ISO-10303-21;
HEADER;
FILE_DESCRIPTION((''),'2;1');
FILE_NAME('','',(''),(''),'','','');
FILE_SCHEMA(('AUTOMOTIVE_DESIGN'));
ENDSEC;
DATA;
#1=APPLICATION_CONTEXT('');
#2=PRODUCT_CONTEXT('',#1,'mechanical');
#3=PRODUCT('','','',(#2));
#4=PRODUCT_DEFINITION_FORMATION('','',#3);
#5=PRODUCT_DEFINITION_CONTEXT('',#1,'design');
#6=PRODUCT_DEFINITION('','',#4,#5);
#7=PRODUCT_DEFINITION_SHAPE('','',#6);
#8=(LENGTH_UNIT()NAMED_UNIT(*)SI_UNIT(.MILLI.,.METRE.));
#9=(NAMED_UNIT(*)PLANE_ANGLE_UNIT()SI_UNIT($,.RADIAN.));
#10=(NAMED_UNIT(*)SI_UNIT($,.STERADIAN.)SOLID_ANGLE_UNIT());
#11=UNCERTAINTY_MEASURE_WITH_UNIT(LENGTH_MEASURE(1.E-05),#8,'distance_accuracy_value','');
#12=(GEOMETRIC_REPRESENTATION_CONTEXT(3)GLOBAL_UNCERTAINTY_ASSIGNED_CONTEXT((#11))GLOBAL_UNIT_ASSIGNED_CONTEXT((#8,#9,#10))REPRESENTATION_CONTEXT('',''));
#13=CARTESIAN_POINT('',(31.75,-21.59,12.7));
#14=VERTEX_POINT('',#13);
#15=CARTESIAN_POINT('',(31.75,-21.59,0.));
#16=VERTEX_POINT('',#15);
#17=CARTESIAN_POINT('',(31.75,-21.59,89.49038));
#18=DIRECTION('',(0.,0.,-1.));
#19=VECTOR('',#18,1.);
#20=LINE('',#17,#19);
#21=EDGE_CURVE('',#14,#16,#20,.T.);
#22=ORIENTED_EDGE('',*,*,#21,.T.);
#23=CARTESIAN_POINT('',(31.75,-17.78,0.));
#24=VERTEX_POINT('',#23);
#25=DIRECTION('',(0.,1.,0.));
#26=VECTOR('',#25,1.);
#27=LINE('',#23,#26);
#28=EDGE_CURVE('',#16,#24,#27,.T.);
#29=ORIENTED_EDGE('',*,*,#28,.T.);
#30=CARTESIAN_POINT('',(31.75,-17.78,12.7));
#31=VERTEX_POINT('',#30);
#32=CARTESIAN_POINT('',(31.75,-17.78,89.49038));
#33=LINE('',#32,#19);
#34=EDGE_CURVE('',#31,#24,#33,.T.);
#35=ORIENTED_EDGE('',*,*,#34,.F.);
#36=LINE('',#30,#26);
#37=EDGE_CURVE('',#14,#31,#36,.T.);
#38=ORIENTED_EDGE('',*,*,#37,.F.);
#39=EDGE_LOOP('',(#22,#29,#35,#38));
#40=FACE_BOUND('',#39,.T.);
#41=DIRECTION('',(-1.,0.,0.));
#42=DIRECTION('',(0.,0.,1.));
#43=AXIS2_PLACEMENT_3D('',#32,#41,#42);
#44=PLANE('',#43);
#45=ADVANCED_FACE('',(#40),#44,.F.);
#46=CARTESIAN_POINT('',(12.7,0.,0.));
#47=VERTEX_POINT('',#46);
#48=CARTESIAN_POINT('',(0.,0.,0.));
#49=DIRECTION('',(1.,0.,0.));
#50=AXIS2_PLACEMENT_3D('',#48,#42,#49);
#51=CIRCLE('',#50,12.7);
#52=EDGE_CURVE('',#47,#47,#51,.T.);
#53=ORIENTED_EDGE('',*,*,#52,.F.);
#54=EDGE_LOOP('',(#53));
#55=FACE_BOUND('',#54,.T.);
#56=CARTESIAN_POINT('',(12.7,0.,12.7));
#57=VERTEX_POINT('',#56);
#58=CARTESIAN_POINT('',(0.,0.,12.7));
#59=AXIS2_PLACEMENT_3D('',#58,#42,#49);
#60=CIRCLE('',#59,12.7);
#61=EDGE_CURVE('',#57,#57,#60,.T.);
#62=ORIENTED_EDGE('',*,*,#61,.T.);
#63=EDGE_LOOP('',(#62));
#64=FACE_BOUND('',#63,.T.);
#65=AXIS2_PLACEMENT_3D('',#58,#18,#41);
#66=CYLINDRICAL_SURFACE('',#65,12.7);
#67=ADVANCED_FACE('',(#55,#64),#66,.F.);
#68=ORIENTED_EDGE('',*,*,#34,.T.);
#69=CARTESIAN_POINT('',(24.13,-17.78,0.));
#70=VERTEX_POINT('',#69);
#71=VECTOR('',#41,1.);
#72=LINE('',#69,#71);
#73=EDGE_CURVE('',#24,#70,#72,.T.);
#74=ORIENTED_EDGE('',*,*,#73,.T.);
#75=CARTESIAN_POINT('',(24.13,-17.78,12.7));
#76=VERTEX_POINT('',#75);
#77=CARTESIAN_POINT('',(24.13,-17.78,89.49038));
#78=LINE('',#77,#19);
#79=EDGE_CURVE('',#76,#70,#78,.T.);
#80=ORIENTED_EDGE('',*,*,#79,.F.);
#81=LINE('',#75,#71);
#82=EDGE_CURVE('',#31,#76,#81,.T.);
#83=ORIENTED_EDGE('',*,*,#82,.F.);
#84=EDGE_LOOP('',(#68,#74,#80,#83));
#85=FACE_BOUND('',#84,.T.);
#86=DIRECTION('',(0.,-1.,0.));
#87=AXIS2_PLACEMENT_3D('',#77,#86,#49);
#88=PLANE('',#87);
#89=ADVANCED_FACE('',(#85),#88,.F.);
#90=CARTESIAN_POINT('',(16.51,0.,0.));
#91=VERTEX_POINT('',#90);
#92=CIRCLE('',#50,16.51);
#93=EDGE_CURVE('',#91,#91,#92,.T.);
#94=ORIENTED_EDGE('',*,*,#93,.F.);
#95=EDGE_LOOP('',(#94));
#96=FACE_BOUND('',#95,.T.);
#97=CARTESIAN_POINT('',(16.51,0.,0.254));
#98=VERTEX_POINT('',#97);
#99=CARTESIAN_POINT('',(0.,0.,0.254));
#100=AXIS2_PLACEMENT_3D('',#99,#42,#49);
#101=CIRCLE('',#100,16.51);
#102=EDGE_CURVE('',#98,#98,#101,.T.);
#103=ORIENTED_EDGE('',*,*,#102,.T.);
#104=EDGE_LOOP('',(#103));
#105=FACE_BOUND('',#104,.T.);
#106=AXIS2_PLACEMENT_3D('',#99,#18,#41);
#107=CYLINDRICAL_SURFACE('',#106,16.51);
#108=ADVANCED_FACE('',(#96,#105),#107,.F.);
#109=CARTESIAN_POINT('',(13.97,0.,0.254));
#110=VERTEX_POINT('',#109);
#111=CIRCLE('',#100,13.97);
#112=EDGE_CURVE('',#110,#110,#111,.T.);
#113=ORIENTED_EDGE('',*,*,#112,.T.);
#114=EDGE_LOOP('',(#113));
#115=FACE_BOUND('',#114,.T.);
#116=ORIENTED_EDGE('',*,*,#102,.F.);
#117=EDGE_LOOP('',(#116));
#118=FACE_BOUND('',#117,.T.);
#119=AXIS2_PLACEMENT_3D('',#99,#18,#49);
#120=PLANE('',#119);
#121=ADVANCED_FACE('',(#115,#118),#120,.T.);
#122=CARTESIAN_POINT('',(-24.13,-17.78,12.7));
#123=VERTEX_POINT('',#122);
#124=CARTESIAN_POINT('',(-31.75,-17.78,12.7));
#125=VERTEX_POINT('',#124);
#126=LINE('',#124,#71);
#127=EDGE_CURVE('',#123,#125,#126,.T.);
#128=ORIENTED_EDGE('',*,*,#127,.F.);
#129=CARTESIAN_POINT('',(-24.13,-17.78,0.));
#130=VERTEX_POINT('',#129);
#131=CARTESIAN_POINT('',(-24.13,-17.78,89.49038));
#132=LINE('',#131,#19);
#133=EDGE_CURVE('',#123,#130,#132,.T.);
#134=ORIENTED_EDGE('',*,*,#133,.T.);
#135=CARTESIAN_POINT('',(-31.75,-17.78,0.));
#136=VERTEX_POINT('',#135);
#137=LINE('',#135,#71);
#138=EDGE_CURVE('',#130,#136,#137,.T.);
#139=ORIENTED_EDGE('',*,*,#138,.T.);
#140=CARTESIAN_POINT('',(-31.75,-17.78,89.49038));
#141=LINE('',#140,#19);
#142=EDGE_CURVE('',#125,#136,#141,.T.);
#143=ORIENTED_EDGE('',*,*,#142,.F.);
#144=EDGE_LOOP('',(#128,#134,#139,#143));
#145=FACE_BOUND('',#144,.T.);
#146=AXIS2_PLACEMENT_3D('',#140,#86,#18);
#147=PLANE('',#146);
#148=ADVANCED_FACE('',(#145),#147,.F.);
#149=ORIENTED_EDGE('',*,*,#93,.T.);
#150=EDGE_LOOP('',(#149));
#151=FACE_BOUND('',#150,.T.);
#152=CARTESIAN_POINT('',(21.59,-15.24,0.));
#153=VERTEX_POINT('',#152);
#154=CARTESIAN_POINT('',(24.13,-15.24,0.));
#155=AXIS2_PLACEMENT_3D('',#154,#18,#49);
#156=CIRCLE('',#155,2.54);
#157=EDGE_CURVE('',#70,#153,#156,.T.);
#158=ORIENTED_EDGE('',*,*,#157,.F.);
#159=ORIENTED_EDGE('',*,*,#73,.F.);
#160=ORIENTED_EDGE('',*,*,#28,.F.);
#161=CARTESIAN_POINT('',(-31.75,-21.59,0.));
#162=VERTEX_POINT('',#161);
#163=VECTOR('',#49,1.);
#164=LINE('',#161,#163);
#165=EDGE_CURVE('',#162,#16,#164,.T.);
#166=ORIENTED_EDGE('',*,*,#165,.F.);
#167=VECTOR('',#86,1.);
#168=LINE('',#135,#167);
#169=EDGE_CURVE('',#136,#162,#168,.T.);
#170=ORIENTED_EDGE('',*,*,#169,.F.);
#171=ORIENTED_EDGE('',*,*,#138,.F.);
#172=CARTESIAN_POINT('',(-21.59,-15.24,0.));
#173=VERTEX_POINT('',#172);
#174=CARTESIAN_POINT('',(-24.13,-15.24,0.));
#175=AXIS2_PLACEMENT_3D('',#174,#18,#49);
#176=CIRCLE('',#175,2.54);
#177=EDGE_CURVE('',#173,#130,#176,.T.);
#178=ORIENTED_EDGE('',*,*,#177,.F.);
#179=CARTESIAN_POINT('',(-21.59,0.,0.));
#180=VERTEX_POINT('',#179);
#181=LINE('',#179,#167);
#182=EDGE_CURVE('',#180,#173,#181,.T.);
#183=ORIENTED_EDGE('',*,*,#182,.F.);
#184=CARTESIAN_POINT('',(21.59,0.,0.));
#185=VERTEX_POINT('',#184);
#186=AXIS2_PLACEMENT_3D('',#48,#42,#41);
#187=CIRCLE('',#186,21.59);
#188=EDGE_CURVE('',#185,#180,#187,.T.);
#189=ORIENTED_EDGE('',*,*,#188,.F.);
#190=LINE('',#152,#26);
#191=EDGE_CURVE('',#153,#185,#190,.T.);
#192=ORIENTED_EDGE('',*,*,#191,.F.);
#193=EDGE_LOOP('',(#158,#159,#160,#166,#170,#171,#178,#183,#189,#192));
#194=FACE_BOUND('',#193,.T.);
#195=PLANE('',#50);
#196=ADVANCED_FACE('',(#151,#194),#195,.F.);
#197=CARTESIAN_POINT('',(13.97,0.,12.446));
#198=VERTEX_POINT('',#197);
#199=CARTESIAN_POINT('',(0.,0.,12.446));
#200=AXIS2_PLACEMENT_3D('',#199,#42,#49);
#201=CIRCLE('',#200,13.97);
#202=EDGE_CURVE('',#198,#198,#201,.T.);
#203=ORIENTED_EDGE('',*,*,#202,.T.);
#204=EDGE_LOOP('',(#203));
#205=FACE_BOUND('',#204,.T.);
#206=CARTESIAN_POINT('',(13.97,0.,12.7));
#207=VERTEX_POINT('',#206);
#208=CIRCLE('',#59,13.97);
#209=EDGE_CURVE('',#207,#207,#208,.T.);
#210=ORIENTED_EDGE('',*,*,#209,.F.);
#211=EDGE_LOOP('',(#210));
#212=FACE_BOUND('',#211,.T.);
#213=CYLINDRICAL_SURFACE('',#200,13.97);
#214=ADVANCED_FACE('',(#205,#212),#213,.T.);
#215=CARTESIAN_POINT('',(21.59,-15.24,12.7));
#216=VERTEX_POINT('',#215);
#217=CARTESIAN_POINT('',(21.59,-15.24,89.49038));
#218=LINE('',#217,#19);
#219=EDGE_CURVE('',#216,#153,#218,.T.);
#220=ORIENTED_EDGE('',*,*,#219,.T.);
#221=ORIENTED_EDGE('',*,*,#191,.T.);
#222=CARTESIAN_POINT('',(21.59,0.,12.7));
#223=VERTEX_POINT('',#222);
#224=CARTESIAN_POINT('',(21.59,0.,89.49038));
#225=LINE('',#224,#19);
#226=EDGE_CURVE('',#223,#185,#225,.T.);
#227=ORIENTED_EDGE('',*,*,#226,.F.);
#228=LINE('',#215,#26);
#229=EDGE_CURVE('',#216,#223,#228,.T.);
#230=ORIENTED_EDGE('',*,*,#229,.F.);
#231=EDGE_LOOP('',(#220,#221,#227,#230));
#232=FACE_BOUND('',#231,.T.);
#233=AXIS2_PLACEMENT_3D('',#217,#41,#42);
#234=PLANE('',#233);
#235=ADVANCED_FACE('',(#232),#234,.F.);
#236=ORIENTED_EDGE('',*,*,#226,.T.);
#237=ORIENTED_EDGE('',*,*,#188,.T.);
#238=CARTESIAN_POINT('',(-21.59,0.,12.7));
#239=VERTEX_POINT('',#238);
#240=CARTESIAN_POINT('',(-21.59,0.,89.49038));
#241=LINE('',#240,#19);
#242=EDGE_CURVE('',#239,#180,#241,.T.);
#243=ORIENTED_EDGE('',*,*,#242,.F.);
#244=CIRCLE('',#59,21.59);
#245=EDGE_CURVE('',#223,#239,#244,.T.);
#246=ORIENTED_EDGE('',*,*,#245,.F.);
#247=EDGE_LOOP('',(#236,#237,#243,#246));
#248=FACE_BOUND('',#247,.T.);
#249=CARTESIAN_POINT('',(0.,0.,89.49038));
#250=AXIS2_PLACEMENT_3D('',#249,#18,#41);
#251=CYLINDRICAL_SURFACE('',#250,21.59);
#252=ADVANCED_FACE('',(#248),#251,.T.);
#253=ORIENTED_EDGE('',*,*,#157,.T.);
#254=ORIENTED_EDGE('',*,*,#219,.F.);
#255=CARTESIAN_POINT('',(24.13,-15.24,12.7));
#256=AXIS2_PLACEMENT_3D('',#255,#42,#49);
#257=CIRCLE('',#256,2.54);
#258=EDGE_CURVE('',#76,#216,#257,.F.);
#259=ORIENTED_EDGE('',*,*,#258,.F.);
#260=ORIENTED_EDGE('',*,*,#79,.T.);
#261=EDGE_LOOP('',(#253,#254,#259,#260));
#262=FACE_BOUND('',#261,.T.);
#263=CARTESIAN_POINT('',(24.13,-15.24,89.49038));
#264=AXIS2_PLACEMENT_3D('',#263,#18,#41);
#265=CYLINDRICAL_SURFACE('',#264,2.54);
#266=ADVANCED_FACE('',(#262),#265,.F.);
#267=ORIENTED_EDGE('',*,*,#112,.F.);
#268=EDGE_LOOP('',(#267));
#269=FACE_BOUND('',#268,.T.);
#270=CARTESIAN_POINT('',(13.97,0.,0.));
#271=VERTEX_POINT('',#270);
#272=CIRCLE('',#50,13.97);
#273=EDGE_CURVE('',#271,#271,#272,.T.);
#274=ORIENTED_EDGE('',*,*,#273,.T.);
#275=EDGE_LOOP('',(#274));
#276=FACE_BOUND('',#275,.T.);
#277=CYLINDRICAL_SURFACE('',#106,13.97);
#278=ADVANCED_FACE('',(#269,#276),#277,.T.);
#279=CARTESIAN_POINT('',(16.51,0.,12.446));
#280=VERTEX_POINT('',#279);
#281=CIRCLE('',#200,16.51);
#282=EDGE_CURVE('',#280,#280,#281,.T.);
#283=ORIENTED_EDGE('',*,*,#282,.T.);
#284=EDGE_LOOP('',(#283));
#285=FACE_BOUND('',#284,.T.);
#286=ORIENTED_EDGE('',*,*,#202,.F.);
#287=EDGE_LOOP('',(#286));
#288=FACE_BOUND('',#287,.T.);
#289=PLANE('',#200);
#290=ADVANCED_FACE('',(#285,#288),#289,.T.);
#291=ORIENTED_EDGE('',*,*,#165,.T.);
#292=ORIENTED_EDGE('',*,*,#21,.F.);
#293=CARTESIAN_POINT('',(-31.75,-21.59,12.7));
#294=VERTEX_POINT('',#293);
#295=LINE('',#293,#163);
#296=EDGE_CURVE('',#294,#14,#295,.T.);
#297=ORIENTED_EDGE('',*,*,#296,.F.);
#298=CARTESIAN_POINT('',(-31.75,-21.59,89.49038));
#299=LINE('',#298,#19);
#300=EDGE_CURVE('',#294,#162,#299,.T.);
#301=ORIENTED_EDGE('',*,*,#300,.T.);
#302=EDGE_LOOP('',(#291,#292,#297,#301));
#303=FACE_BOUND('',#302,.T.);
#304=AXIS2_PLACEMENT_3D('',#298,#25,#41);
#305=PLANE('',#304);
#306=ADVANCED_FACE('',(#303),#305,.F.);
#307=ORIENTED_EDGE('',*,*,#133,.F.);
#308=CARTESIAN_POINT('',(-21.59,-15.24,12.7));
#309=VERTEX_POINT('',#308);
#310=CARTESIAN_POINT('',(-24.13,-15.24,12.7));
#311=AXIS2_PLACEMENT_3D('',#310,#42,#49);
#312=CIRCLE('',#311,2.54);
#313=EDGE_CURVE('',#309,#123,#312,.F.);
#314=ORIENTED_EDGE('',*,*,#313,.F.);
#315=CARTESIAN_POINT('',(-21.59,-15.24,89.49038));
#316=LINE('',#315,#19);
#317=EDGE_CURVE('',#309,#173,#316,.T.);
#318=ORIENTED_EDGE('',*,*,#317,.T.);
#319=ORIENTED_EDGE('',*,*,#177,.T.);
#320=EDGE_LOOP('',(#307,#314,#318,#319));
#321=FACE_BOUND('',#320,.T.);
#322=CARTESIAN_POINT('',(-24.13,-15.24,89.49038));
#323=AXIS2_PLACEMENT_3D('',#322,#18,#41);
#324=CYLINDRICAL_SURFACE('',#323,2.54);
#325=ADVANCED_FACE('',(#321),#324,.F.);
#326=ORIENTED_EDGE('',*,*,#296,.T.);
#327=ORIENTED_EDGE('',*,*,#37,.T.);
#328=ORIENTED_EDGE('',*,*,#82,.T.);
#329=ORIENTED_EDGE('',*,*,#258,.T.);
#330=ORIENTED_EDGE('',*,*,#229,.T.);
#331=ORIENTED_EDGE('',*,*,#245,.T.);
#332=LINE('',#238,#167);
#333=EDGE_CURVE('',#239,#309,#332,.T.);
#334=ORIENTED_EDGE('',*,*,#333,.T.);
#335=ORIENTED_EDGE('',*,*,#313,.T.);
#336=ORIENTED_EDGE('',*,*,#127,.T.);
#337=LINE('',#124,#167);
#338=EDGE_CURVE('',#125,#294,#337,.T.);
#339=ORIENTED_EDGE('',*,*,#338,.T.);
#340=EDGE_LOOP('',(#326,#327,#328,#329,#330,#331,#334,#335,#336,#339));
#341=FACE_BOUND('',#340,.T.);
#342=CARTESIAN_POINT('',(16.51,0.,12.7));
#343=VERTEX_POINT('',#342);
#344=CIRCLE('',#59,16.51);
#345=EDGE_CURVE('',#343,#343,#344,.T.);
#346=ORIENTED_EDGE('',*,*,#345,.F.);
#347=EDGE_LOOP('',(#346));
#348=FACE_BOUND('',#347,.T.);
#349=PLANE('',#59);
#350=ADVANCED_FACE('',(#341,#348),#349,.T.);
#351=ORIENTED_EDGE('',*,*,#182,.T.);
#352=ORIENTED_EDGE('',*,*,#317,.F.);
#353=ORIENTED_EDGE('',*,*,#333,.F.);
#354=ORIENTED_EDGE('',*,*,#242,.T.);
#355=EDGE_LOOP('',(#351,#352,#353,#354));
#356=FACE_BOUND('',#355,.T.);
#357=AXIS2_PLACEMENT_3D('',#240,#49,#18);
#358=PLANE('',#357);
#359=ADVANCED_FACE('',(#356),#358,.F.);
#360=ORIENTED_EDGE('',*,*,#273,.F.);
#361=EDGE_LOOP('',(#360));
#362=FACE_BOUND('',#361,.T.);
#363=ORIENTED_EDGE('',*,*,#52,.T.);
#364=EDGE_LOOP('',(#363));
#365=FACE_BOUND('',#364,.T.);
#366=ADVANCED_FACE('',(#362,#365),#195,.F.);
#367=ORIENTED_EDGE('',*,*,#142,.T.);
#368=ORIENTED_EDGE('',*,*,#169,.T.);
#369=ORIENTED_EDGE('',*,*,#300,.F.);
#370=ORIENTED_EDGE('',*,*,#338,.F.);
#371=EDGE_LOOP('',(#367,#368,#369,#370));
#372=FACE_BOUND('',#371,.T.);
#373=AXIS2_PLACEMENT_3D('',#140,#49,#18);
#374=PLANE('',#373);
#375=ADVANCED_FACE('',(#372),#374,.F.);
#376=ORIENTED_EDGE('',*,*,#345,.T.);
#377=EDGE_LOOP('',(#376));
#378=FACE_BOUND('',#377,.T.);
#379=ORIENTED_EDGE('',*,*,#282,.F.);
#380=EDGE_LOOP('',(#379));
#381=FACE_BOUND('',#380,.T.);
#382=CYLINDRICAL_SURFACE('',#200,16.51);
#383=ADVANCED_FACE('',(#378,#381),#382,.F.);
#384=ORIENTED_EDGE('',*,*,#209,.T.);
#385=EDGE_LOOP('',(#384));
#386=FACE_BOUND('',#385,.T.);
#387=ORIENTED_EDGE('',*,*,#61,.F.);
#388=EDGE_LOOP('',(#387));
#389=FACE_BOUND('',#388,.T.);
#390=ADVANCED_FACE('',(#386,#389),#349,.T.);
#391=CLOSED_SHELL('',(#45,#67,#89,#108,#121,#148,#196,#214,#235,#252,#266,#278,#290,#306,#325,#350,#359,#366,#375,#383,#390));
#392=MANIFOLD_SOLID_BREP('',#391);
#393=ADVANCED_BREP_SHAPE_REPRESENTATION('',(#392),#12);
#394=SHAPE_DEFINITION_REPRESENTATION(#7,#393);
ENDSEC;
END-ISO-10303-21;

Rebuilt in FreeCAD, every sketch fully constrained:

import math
import FreeCAD as App
import Part
import Sketcher

V = App.Vector
Q = App.Units.Quantity

doc = App.newDocument("Part")
body = doc.addObject("PartDesign::Body", "Body")

# Sketch on XY plane
sketch1 = body.newObject("Sketcher::SketchObject", "Sketch")
sketch1.AttachmentSupport = (doc.getObject("XY_Plane"), [""])
sketch1.MapMode = "FlatFace"
sketch1.addGeometry(Part.Circle(V(0, 0, 0), V(0, 0, 1), 18), False)
sketch1.addGeometry(Part.Circle(V(0, 0, 0), V(0, 0, 1), 13), False)
sketch1.addConstraint(Sketcher.Constraint("Coincident", 0, 3, -1, 1))
sketch1.addConstraint(Sketcher.Constraint("Coincident", 1, 3, -1, 1))
sketch1.addConstraint(Sketcher.Constraint("Diameter", 1, Q("1 in")))
sketch1.addConstraint(Sketcher.Constraint("Diameter", 0, Q("1.4 in")))
pad1 = body.newObject("PartDesign::Pad", "Pad")
pad1.Profile = sketch1
pad1.Length = Q("0.5 in")

# Sketch on XY plane
sketch2 = body.newObject("Sketcher::SketchObject", "Sketch001")
sketch2.AttachmentSupport = (doc.getObject("XY_Plane"), [""])
sketch2.MapMode = "FlatFace"
sketch2.AttachmentOffset = App.Placement(V(0, 0, 0.5 * 25.4), App.Rotation())
sketch2.addGeometry(Part.Circle(V(0, 0, 0), V(0, 0, 1), 17), False)
sketch2.addGeometry(Part.Circle(V(0, 0, 0), V(0, 0, 1), 14), False)
sketch2.addConstraint(Sketcher.Constraint("Coincident", 0, 3, -1, 1))
sketch2.addConstraint(Sketcher.Constraint("Coincident", 1, 3, -1, 1))
sketch2.addConstraint(Sketcher.Constraint("Diameter", 0, Q("1.3 in")))
sketch2.addConstraint(Sketcher.Constraint("Diameter", 1, Q("1.1 in")))
pocket1 = body.newObject("PartDesign::Pocket", "Pocket")
pocket1.Profile = sketch2
pocket1.Length = Q("0.01 in")
doc.recompute()

datumplane = body.newObject("PartDesign::Plane", "DatumPlane")
datumplane.AttachmentSupport = (doc.getObject("XY_Plane"), [""])
datumplane.MapMode = "FlatFace"
datumplane.AttachmentOffset = App.Placement(V(0, 0, 0.25 * 25.4), App.Rotation())
mirrored = body.newObject("PartDesign::Mirrored", "Mirrored")
mirrored.Originals = [pocket1]
mirrored.MirrorPlane = (datumplane, [""])
body.Tip = mirrored

# Sketch on XY plane
sketch3 = body.newObject("Sketcher::SketchObject", "Sketch002")
sketch3.AttachmentSupport = (doc.getObject("XY_Plane"), [""])
sketch3.MapMode = "FlatFace"
sketch3.addGeometry(Part.LineSegment(V(-31.8, -21.6, 0), V(31.8, -21.6, 0)), False)
sketch3.addGeometry(Part.LineSegment(V(31.8, -21.6, 0), V(31.8, -17.8, 0)), False)
sketch3.addGeometry(Part.LineSegment(V(31.8, -17.8, 0), V(24.1, -17.8, 0)), False)
sketch3.addGeometry(Part.ArcOfCircle(Part.Circle(V(24.1, -15.2, 0), V(0, 0, 1), 2.5), math.radians(-180), math.radians(-90)), False)
sketch3.addGeometry(Part.LineSegment(V(21.6, -15.2, 0), V(21.6, 0, 0)), False)
sketch3.addGeometry(Part.ArcOfCircle(Part.Circle(V(0, 0, 0), V(0, 0, 1), 21.6), math.radians(0), math.radians(180)), False)
sketch3.addGeometry(Part.LineSegment(V(-21.6, 0, 0), V(-21.6, -15.2, 0)), False)
sketch3.addGeometry(Part.ArcOfCircle(Part.Circle(V(-24.1, -15.2, 0), V(0, 0, 1), 2.5), math.radians(-90), math.radians(0)), False)
sketch3.addGeometry(Part.LineSegment(V(-24.1, -17.8, 0), V(-31.8, -17.8, 0)), False)
sketch3.addGeometry(Part.LineSegment(V(-31.8, -17.8, 0), V(-31.8, -21.6, 0)), False)
sketch3.addGeometry(Part.Circle(V(0, 0, 0), V(0, 0, 1), 17.8), False)
sketch3.addConstraint(Sketcher.Constraint("Coincident", 0, 2, 1, 1))
sketch3.addConstraint(Sketcher.Constraint("Coincident", 1, 2, 2, 1))
sketch3.addConstraint(Sketcher.Constraint("Tangent", 2, 2, 3, 2))
sketch3.addConstraint(Sketcher.Constraint("Tangent", 3, 1, 4, 1))
sketch3.addConstraint(Sketcher.Constraint("Tangent", 4, 2, 5, 1))
sketch3.addConstraint(Sketcher.Constraint("Tangent", 5, 2, 6, 1))
sketch3.addConstraint(Sketcher.Constraint("Tangent", 6, 2, 7, 2))
sketch3.addConstraint(Sketcher.Constraint("Tangent", 7, 1, 8, 1))
sketch3.addConstraint(Sketcher.Constraint("Coincident", 8, 2, 9, 1))
sketch3.addConstraint(Sketcher.Constraint("Coincident", 9, 2, 0, 1))
sketch3.addConstraint(Sketcher.Constraint("Horizontal", 0))
sketch3.addConstraint(Sketcher.Constraint("Vertical", 1))
sketch3.addConstraint(Sketcher.Constraint("Horizontal", 2))
sketch3.addConstraint(Sketcher.Constraint("Vertical", 4))
sketch3.addConstraint(Sketcher.Constraint("Vertical", 6))
sketch3.addConstraint(Sketcher.Constraint("Horizontal", 8))
sketch3.addConstraint(Sketcher.Constraint("Vertical", 9))
sketch3.addConstraint(Sketcher.Constraint("Coincident", 5, 3, -1, 1))
sketch3.addConstraint(Sketcher.Constraint("Coincident", 10, 3, -1, 1))
sketch3.addConstraint(Sketcher.Constraint("Equal", 3, 7))
sketch3.addConstraint(Sketcher.Constraint("Symmetric", 1, 2, 8, 2, -2))
sketch3.addConstraint(Sketcher.Constraint("Diameter", 10, Q("1.4 in")))
sketch3.addConstraint(Sketcher.Constraint("Radius", 3, Q("0.1 in")))
sketch3.addConstraint(Sketcher.Constraint("Radius", 5, Q("0.85 in")))
sketch3.addConstraint(Sketcher.Constraint("DistanceX", 0, 1, 0, 2, Q("2.5 in")))
sketch3.addConstraint(Sketcher.Constraint("DistanceY", 4, 1, 4, 2, Q("0.6 in")))
sketch3.addConstraint(Sketcher.Constraint("DistanceY", 1, 1, 1, 2, Q("0.15 in")))
pad2 = body.newObject("PartDesign::Pad", "Pad001")
pad2.Profile = sketch3
pad2.Length = Q("0.5 in")

doc.recompute()
